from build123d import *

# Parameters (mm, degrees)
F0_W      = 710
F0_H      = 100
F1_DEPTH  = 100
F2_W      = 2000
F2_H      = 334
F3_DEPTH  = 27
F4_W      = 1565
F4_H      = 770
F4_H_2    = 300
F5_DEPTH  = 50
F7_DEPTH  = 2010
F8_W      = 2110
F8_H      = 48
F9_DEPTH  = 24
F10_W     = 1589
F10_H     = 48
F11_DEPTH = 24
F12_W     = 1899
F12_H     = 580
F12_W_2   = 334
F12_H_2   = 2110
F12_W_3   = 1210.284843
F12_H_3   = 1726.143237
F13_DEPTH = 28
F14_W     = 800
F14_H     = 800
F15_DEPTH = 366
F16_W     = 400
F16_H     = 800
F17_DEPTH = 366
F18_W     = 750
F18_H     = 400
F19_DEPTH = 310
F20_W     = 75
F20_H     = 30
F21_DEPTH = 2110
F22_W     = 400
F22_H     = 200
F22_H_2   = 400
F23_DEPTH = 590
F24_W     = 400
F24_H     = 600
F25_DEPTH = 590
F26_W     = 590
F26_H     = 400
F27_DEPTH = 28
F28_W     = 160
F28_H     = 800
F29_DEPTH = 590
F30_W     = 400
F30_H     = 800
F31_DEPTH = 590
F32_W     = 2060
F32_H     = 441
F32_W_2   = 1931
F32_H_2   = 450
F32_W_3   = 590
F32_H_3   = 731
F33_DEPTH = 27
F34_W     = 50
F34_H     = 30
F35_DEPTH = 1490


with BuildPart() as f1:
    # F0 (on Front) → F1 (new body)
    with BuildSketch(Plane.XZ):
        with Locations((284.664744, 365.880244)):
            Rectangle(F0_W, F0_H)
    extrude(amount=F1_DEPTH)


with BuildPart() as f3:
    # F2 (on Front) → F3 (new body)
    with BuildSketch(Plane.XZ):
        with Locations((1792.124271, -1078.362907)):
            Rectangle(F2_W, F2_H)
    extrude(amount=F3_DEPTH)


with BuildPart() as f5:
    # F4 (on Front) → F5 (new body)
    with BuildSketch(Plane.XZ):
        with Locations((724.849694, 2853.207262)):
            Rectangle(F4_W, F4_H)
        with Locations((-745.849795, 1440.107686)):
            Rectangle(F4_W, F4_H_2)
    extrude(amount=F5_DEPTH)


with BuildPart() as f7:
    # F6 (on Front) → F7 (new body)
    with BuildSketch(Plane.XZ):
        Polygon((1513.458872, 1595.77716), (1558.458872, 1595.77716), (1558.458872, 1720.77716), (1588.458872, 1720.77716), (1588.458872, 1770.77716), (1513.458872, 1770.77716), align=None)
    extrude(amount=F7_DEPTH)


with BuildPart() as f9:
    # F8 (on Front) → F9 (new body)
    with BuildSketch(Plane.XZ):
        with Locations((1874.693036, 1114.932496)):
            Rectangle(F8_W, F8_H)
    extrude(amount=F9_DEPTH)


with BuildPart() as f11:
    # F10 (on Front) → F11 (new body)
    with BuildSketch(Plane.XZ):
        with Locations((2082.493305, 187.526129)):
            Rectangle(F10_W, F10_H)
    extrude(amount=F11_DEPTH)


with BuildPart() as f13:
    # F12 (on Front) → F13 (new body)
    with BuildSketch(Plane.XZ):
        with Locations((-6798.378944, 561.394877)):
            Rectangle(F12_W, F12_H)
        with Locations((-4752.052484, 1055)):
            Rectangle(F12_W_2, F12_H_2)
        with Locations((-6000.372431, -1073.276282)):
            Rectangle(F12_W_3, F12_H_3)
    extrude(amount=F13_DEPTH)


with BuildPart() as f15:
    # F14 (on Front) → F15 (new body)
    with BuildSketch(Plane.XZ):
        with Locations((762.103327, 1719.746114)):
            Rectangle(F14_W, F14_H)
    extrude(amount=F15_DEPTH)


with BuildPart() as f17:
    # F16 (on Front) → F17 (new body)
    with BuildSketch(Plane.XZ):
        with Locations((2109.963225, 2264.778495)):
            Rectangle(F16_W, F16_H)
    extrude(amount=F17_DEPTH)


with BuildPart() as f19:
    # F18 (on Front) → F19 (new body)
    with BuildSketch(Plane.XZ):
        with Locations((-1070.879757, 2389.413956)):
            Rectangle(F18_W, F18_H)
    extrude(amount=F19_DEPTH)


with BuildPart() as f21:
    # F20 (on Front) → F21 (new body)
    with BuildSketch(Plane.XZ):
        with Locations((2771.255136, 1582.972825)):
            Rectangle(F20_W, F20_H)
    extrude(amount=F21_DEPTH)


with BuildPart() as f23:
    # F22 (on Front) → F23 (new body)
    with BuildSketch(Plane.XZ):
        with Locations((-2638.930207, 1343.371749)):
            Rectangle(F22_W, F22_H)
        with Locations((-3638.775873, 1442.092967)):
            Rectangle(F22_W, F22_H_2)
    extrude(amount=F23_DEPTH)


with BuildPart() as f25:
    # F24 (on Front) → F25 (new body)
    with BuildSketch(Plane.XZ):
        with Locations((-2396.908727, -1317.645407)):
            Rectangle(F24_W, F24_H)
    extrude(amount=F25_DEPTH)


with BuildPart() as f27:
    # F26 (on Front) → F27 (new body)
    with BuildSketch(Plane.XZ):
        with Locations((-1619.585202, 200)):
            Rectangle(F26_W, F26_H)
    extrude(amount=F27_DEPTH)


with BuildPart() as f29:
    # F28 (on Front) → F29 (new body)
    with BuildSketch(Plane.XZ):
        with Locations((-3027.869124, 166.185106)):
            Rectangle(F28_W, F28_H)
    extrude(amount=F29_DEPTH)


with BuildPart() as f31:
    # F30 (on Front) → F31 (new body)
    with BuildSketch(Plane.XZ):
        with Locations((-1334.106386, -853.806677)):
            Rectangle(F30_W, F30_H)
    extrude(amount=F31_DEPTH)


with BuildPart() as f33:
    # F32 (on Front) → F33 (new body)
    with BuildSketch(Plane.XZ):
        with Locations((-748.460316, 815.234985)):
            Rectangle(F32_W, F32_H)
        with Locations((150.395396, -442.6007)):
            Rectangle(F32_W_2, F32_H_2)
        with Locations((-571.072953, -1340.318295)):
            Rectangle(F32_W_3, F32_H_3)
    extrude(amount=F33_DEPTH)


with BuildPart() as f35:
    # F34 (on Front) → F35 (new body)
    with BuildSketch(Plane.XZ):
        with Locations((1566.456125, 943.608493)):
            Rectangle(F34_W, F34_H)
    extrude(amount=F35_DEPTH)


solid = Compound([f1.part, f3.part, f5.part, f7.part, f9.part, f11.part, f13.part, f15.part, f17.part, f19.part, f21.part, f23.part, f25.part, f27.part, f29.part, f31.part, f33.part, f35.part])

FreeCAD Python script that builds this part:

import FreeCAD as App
import Part
import Sketcher

V = App.Vector


def add_polygon(sketch, points):
    """Adds a closed chain of lines whose ends are joined by coincident constraints."""
    first, n = sketch.GeometryCount, len(points)
    for a, b in zip(points, points[1:] + points[:1]):
        sketch.addGeometry(Part.LineSegment(App.Vector(*a, 0), App.Vector(*b, 0)), False)
    for i in range(n):
        sketch.addConstraint(Sketcher.Constraint("Coincident", first + i, 2, first + (i + 1) % n, 1))

doc = App.newDocument("Part")
body = doc.addObject("PartDesign::Body", "Body")

sketch1 = body.newObject("Sketcher::SketchObject", "Sketch")
sketch1.AttachmentSupport = (doc.getObject("XZ_Plane"), [""])
sketch1.MapMode = "FlatFace"
add_polygon(sketch1, [(-70.335256, 415.880244), (-70.335256, 315.880244), (639.664744, 315.880244), (639.664744, 415.880244)])
sketch1.addConstraint([
    Sketcher.Constraint("Vertical", 0),
    Sketcher.Constraint("Horizontal", 1),
    Sketcher.Constraint("Vertical", 2),
    Sketcher.Constraint("Horizontal", 3),
    Sketcher.Constraint("DistanceX", 1, 1, 1, 2, 710.0),
    Sketcher.Constraint("DistanceY", 0, 2, 0, 1, 100.0),
    Sketcher.Constraint("DistanceX", 0, 2, -1, 1, 70.335256),
    Sketcher.Constraint("DistanceY", -1, 1, 0, 2, 315.880244),
])
pad1 = body.newObject("PartDesign::Pad", "Pad")
pad1.Profile = sketch1
pad1.Length = 100
body2 = doc.addObject("PartDesign::Body", "Body001")

sketch2 = body2.newObject("Sketcher::SketchObject", "Sketch001")
sketch2.AttachmentSupport = (doc.getObject("XZ_Plane001"), [""])
sketch2.MapMode = "FlatFace"
add_polygon(sketch2, [(792.124271, -911.362907), (792.124271, -1245.362907), (2792.124271, -1245.362907), (2792.124271, -911.362907)])
sketch2.addConstraint([
    Sketcher.Constraint("Vertical", 0),
    Sketcher.Constraint("Horizontal", 1),
    Sketcher.Constraint("Vertical", 2),
    Sketcher.Constraint("Horizontal", 3),
    Sketcher.Constraint("DistanceX", 1, 1, 1, 2, 2000.0),
    Sketcher.Constraint("DistanceY", 0, 2, 0, 1, 334.0),
    Sketcher.Constraint("DistanceX", -1, 1, 0, 2, 792.124271),
    Sketcher.Constraint("DistanceY", 0, 2, -1, 1, 1245.362907),
])
pad2 = body2.newObject("PartDesign::Pad", "Pad001")
pad2.Profile = sketch2
pad2.Length = 27
body3 = doc.addObject("PartDesign::Body", "Body002")
body3.AllowCompound = True

sketch3 = body3.newObject("Sketcher::SketchObject", "Sketch002")
sketch3.AttachmentSupport = (doc.getObject("XZ_Plane002"), [""])
sketch3.MapMode = "FlatFace"
add_polygon(sketch3, [(-57.650306, 3238.207262), (-57.650306, 2468.207262), (1507.349694, 2468.207262), (1507.349694, 3238.207262)])
add_polygon(sketch3, [(-1528.349795, 1590.107686), (-1528.349795, 1290.107686), (36.650205, 1290.107686), (36.650205, 1590.107686)])
sketch3.addConstraint([
    Sketcher.Constraint("Vertical", 0),
    Sketcher.Constraint("Horizontal", 1),
    Sketcher.Constraint("Vertical", 2),
    Sketcher.Constraint("Horizontal", 3),
    Sketcher.Constraint("Vertical", 4),
    Sketcher.Constraint("Horizontal", 5),
    Sketcher.Constraint("Vertical", 6),
    Sketcher.Constraint("Horizontal", 7),
    Sketcher.Constraint("Equal", 3, 5),
    Sketcher.Constraint("DistanceX", 1, 1, 1, 2, 1565.0),
    Sketcher.Constraint("DistanceY", 0, 2, 0, 1, 770.0),
    Sketcher.Constraint("DistanceY", 4, 2, 4, 1, 300.0),
    Sketcher.Constraint("DistanceY", -1, 1, 0, 2, 2468.207262),
    Sketcher.Constraint("DistanceX", 4, 2, 0, 2, 1470.699489),
    Sketcher.Constraint("DistanceX", 0, 2, -1, 1, 57.650306),
    Sketcher.Constraint("DistanceY", -1, 1, 4, 2, 1290.107686),
])
pad3 = body3.newObject("PartDesign::Pad", "Pad002")
pad3.Profile = sketch3
pad3.Length = 50
body4 = doc.addObject("PartDesign::Body", "Body003")

sketch4 = body4.newObject("Sketcher::SketchObject", "Sketch003")
sketch4.AttachmentSupport = (doc.getObject("XZ_Plane003"), [""])
sketch4.MapMode = "FlatFace"
add_polygon(sketch4, [(1513.458872, 1595.77716), (1558.458872, 1595.77716), (1558.458872, 1720.77716), (1588.458872, 1720.77716), (1588.458872, 1770.77716), (1513.458872, 1770.77716)])
sketch4.addConstraint([
    Sketcher.Constraint("Horizontal", 0),
    Sketcher.Constraint("Vertical", 1),
    Sketcher.Constraint("Horizontal", 2),
    Sketcher.Constraint("Vertical", 3),
    Sketcher.Constraint("Horizontal", 4),
    Sketcher.Constraint("Vertical", 5),
    Sketcher.Constraint("DistanceX", 0, 1, 0, 2, 45.0),
    Sketcher.Constraint("DistanceX", 2, 1, 2, 2, 30.0),
    Sketcher.Constraint("DistanceY", 1, 1, 1, 2, 125.0),
    Sketcher.Constraint("DistanceY", 3, 1, 3, 2, 50.0),
    Sketcher.Constraint("DistanceX", -1, 1, 0, 2, 1558.458872),
    Sketcher.Constraint("DistanceY", -1, 1, 0, 2, 1595.77716),
])
pad4 = body4.newObject("PartDesign::Pad", "Pad003")
pad4.Profile = sketch4
pad4.Length = 2010
body5 = doc.addObject("PartDesign::Body", "Body004")

sketch5 = body5.newObject("Sketcher::SketchObject", "Sketch004")
sketch5.AttachmentSupport = (doc.getObject("XZ_Plane004"), [""])
sketch5.MapMode = "FlatFace"
add_polygon(sketch5, [(819.693036, 1138.932496), (819.693036, 1090.932496), (2929.693036, 1090.932496), (2929.693036, 1138.932496)])
sketch5.addConstraint([
    Sketcher.Constraint("Vertical", 0),
    Sketcher.Constraint("Horizontal", 1),
    Sketcher.Constraint("Vertical", 2),
    Sketcher.Constraint("Horizontal", 3),
    Sketcher.Constraint("DistanceX", 1, 1, 1, 2, 2110.0),
    Sketcher.Constraint("DistanceY", 0, 2, 0, 1, 48.0),
    Sketcher.Constraint("DistanceX", -1, 1, 0, 2, 819.693036),
    Sketcher.Constraint("DistanceY", -1, 1, 0, 2, 1090.932496),
])
pad5 = body5.newObject("PartDesign::Pad", "Pad004")
pad5.Profile = sketch5
pad5.Length = 24
body6 = doc.addObject("PartDesign::Body", "Body005")

sketch6 = body6.newObject("Sketcher::SketchObject", "Sketch005")
sketch6.AttachmentSupport = (doc.getObject("XZ_Plane005"), [""])
sketch6.MapMode = "FlatFace"
add_polygon(sketch6, [(1287.993305, 211.526129), (1287.993305, 163.526129), (2876.993305, 163.526129), (2876.993305, 211.526129)])
sketch6.addConstraint([
    Sketcher.Constraint("Vertical", 0),
    Sketcher.Constraint("Horizontal", 1),
    Sketcher.Constraint("Vertical", 2),
    Sketcher.Constraint("Horizontal", 3),
    Sketcher.Constraint("DistanceX", 1, 1, 1, 2, 1589.0),
    Sketcher.Constraint("DistanceY", 0, 2, 0, 1, 48.0),
    Sketcher.Constraint("DistanceY", -1, 1, 0, 2, 163.526129),
    Sketcher.Constraint("DistanceX", -1, 1, 0, 2, 1287.993305),
])
pad6 = body6.newObject("PartDesign::Pad", "Pad005")
pad6.Profile = sketch6
pad6.Length = 24
body7 = doc.addObject("PartDesign::Body", "Body006")
body7.AllowCompound = True

sketch7 = body7.newObject("Sketcher::SketchObject", "Sketch006")
sketch7.AttachmentSupport = (doc.getObject("XZ_Plane006"), [""])
sketch7.MapMode = "FlatFace"
add_polygon(sketch7, [(-7747.878944, 851.394877), (-7747.878944, 271.394877), (-5848.878944, 271.394877), (-5848.878944, 851.394877)])
add_polygon(sketch7, [(-4919.052484, 2110), (-4919.052484, 0), (-4585.052484, 0), (-4585.052484, 2110)])
add_polygon(sketch7, [(-6605.514853, -210.204664), (-6605.514853, -1936.3479), (-5395.23001, -1936.3479), (-5395.23001, -210.204664)])
sketch7.addConstraint([
    Sketcher.Constraint("Vertical", 0),
    Sketcher.Constraint("Horizontal", 1),
    Sketcher.Constraint("Vertical", 2),
    Sketcher.Constraint("Horizontal", 3),
    Sketcher.Constraint("Vertical", 4),
    Sketcher.Constraint("Horizontal", 5),
    Sketcher.Constraint("Vertical", 6),
    Sketcher.Constraint("Horizontal", 7),
    Sketcher.Constraint("Vertical", 8),
    Sketcher.Constraint("Horizontal", 9),
    Sketcher.Constraint("Vertical", 10),
    Sketcher.Constraint("Horizontal", 11),
    Sketcher.Constraint("PointOnObject", 4, 2, -1),
    Sketcher.Constraint("DistanceX", 1, 1, 1, 2, 1899.0),
    Sketcher.Constraint("DistanceX", 5, 1, 5, 2, 334.0),
    Sketcher.Constraint("DistanceY", 0, 2, 0, 1, 580.0),
    Sketcher.Constraint("DistanceY", 4, 2, 4, 1, 2110.0),
    Sketcher.Constraint("DistanceY", 8, 2, -1, 1, 1936.3479),
    Sketcher.Constraint("DistanceX", 9, 1, 9, 2, 1210.284843),
    Sketcher.Constraint("DistanceY", 8, 2, 8, 1, 1726.143237),
    Sketcher.Constraint("DistanceX", 9, 2, -1, 1, 5395.23001),
    Sketcher.Constraint("DistanceX", 1, 2, 4, 2, 929.82646),
    Sketcher.Constraint("DistanceX", 8, 2, 1, 2, 756.635909),
    Sketcher.Constraint("DistanceY", 10, 2, 1, 2, 481.59954),
])
pad7 = body7.newObject("PartDesign::Pad", "Pad006")
pad7.Profile = sketch7
pad7.Length = 28
body8 = doc.addObject("PartDesign::Body", "Body007")

sketch8 = body8.newObject("Sketcher::SketchObject", "Sketch007")
sketch8.AttachmentSupport = (doc.getObject("XZ_Plane007"), [""])
sketch8.MapMode = "FlatFace"
add_polygon(sketch8, [(362.103327, 2119.746114), (362.103327, 1319.746114), (1162.103327, 1319.746114), (1162.103327, 2119.746114)])
sketch8.addConstraint([
    Sketcher.Constraint("Vertical", 0),
    Sketcher.Constraint("Horizontal", 1),
    Sketcher.Constraint("Vertical", 2),
    Sketcher.Constraint("Horizontal", 3),
    Sketcher.Constraint("Equal", 3, 0),
    Sketcher.Constraint("DistanceX", 1, 1, 1, 2, 800.0),
    Sketcher.Constraint("DistanceX", -1, 1, 0, 2, 362.103327),
    Sketcher.Constraint("DistanceY", -1, 1, 0, 2, 1319.746114),
])
pad8 = body8.newObject("PartDesign::Pad", "Pad007")
pad8.Profile = sketch8
pad8.Length = 366
body9 = doc.addObject("PartDesign::Body", "Body008")

sketch9 = body9.newObject("Sketcher::SketchObject", "Sketch008")
sketch9.AttachmentSupport = (doc.getObject("XZ_Plane008"), [""])
sketch9.MapMode = "FlatFace"
add_polygon(sketch9, [(1909.963225, 2664.778495), (1909.963225, 1864.778495), (2309.963225, 1864.778495), (2309.963225, 2664.778495)])
sketch9.addConstraint([
    Sketcher.Constraint("Vertical", 0),
    Sketcher.Constraint("Horizontal", 1),
    Sketcher.Constraint("Vertical", 2),
    Sketcher.Constraint("Horizontal", 3),
    Sketcher.Constraint("DistanceX", 1, 1, 1, 2, 400.0),
    Sketcher.Constraint("DistanceY", 0, 2, 0, 1, 800.0),
    Sketcher.Constraint("DistanceX", -1, 1, 0, 2, 1909.963225),
    Sketcher.Constraint("DistanceY", -1, 1, 0, 2, 1864.778495),
])
pad9 = body9.newObject("PartDesign::Pad", "Pad008")
pad9.Profile = sketch9
pad9.Length = 366
body10 = doc.addObject("PartDesign::Body", "Body009")

sketch10 = body10.newObject("Sketcher::SketchObject", "Sketch009")
sketch10.AttachmentSupport = (doc.getObject("XZ_Plane009"), [""])
sketch10.MapMode = "FlatFace"
add_polygon(sketch10, [(-1445.879757, 2589.413956), (-1445.879757, 2189.413956), (-695.879757, 2189.413956), (-695.879757, 2589.413956)])
sketch10.addConstraint([
    Sketcher.Constraint("Vertical", 0),
    Sketcher.Constraint("Horizontal", 1),
    Sketcher.Constraint("Vertical", 2),
    Sketcher.Constraint("Horizontal", 3),
    Sketcher.Constraint("DistanceX", 1, 1, 1, 2, 750.0),
    Sketcher.Constraint("DistanceY", 0, 2, 0, 1, 400.0),
    Sketcher.Constraint("DistanceX", 0, 2, -1, 1, 1445.879757),
    Sketcher.Constraint("DistanceY", -1, 1, 0, 2, 2189.413956),
])
pad10 = body10.newObject("PartDesign::Pad", "Pad009")
pad10.Profile = sketch10
pad10.Length = 310
body11 = doc.addObject("PartDesign::Body", "Body010")

sketch11 = body11.newObject("Sketcher::SketchObject", "Sketch010")
sketch11.AttachmentSupport = (doc.getObject("XZ_Plane010"), [""])
sketch11.MapMode = "FlatFace"
add_polygon(sketch11, [(2733.755136, 1597.972825), (2733.755136, 1567.972825), (2808.755136, 1567.972825), (2808.755136, 1597.972825)])
sketch11.addConstraint([
    Sketcher.Constraint("Vertical", 0),
    Sketcher.Constraint("Horizontal", 1),
    Sketcher.Constraint("Vertical", 2),
    Sketcher.Constraint("Horizontal", 3),
    Sketcher.Constraint("DistanceX", 1, 1, 1, 2, 75.0),
    Sketcher.Constraint("DistanceY", 0, 2, 0, 1, 30.0),
    Sketcher.Constraint("DistanceX", -1, 1, 0, 2, 2733.755136),
    Sketcher.Constraint("DistanceY", -1, 1, 0, 2, 1567.972825),
])
pad11 = body11.newObject("PartDesign::Pad", "Pad010")
pad11.Profile = sketch11
pad11.Length = 2110
body12 = doc.addObject("PartDesign::Body", "Body011")
body12.AllowCompound = True

sketch12 = body12.newObject("Sketcher::SketchObject", "Sketch011")
sketch12.AttachmentSupport = (doc.getObject("XZ_Plane011"), [""])
sketch12.MapMode = "FlatFace"
add_polygon(sketch12, [(-2838.930207, 1443.371749), (-2838.930207, 1243.371749), (-2438.930207, 1243.371749), (-2438.930207, 1443.371749)])
add_polygon(sketch12, [(-3838.775873, 1642.092967), (-3838.775873, 1242.092967), (-3438.775873, 1242.092967), (-3438.775873, 1642.092967)])
sketch12.addConstraint([
    Sketcher.Constraint("Vertical", 0),
    Sketcher.Constraint("Horizontal", 1),
    Sketcher.Constraint("Vertical", 2),
    Sketcher.Constraint("Horizontal", 3),
    Sketcher.Constraint("Vertical", 4),
    Sketcher.Constraint("Horizontal", 5),
    Sketcher.Constraint("Vertical", 6),
    Sketcher.Constraint("Horizontal", 7),
    Sketcher.Constraint("Equal", 3, 5),
    Sketcher.Constraint("Equal", 7, 4),
    Sketcher.Constraint("DistanceX", 1, 1, 1, 2, 400.0),
    Sketcher.Constraint("DistanceY", 0, 2, 0, 1, 200.0),
    Sketcher.Constraint("DistanceY", -1, 1, 0, 2, 1243.371749),
    Sketcher.Constraint("DistanceY", 4, 2, 0, 2, 1.278782),
    Sketcher.Constraint("DistanceX", 0, 2, -1, 1, 2838.930207),
    Sketcher.Constraint("DistanceX", 4, 2, -1, 1, 3838.775873),
])
pad12 = body12.newObject("PartDesign::Pad", "Pad011")
pad12.Profile = sketch12
pad12.Length = 590
body13 = doc.addObject("PartDesign::Body", "Body012")

sketch13 = body13.newObject("Sketcher::SketchObject", "Sketch012")
sketch13.AttachmentSupport = (doc.getObject("XZ_Plane012"), [""])
sketch13.MapMode = "FlatFace"
add_polygon(sketch13, [(-2596.908727, -1017.645407), (-2596.908727, -1617.645407), (-2196.908727, -1617.645407), (-2196.908727, -1017.645407)])
sketch13.addConstraint([
    Sketcher.Constraint("Vertical", 0),
    Sketcher.Constraint("Horizontal", 1),
    Sketcher.Constraint("Vertical", 2),
    Sketcher.Constraint("Horizontal", 3),
    Sketcher.Constraint("DistanceX", 1, 1, 1, 2, 400.0),
    Sketcher.Constraint("DistanceY", 0, 2, 0, 1, 600.0),
    Sketcher.Constraint("DistanceX", 0, 2, -1, 1, 2596.908727),
    Sketcher.Constraint("DistanceY", 0, 2, -1, 1, 1617.645407),
])
pad13 = body13.newObject("PartDesign::Pad", "Pad012")
pad13.Profile = sketch13
pad13.Length = 590
body14 = doc.addObject("PartDesign::Body", "Body013")

sketch14 = body14.newObject("Sketcher::SketchObject", "Sketch013")
sketch14.AttachmentSupport = (doc.getObject("XZ_Plane013"), [""])
sketch14.MapMode = "FlatFace"
add_polygon(sketch14, [(-1914.585202, 400), (-1914.585202, 0), (-1324.585202, 0), (-1324.585202, 400)])
sketch14.addConstraint([
    Sketcher.Constraint("Vertical", 0),
    Sketcher.Constraint("Horizontal", 1),
    Sketcher.Constraint("Vertical", 2),
    Sketcher.Constraint("Horizontal", 3),
    Sketcher.Constraint("PointOnObject", 0, 2, -1),
    Sketcher.Constraint("DistanceX", 1, 1, 1, 2, 590.0),
    Sketcher.Constraint("DistanceY", 0, 2, 0, 1, 400.0),
    Sketcher.Constraint("DistanceX", 0, 2, -1, 1, 1914.585202),
])
pad14 = body14.newObject("PartDesign::Pad", "Pad013")
pad14.Profile = sketch14
pad14.Length = 28
body15 = doc.addObject("PartDesign::Body", "Body014")

sketch15 = body15.newObject("Sketcher::SketchObject", "Sketch014")
sketch15.AttachmentSupport = (doc.getObject("XZ_Plane014"), [""])
sketch15.MapMode = "FlatFace"
add_polygon(sketch15, [(-3107.869124, 566.185106), (-3107.869124, -233.814894), (-2947.869124, -233.814894), (-2947.869124, 566.185106)])
sketch15.addConstraint([
    Sketcher.Constraint("Vertical", 0),
    Sketcher.Constraint("Horizontal", 1),
    Sketcher.Constraint("Vertical", 2),
    Sketcher.Constraint("Horizontal", 3),
    Sketcher.Constraint("DistanceX", 1, 1, 1, 2, 160.0),
    Sketcher.Constraint("DistanceY", 0, 2, 0, 1, 800.0),
    Sketcher.Constraint("DistanceX", 0, 2, -1, 1, 3107.869124),
    Sketcher.Constraint("DistanceY", 0, 2, -1, 1, 233.814894),
])
pad15 = body15.newObject("PartDesign::Pad", "Pad014")
pad15.Profile = sketch15
pad15.Length = 590
body16 = doc.addObject("PartDesign::Body", "Body015")

sketch16 = body16.newObject("Sketcher::SketchObject", "Sketch015")
sketch16.AttachmentSupport = (doc.getObject("XZ_Plane015"), [""])
sketch16.MapMode = "FlatFace"
add_polygon(sketch16, [(-1534.106386, -453.806677), (-1534.106386, -1253.806677), (-1134.106386, -1253.806677), (-1134.106386, -453.806677)])
sketch16.addConstraint([
    Sketcher.Constraint("Vertical", 0),
    Sketcher.Constraint("Horizontal", 1),
    Sketcher.Constraint("Vertical", 2),
    Sketcher.Constraint("Horizontal", 3),
    Sketcher.Constraint("DistanceX", 1, 1, 1, 2, 400.0),
    Sketcher.Constraint("DistanceY", 0, 2, 0, 1, 800.0),
    Sketcher.Constraint("DistanceX", 0, 2, -1, 1, 1534.106386),
    Sketcher.Constraint("DistanceY", 0, 2, -1, 1, 1253.806677),
])
pad16 = body16.newObject("PartDesign::Pad", "Pad015")
pad16.Profile = sketch16
pad16.Length = 590
body17 = doc.addObject("PartDesign::Body", "Body016")
body17.AllowCompound = True

sketch17 = body17.newObject("Sketcher::SketchObject", "Sketch016")
sketch17.AttachmentSupport = (doc.getObject("XZ_Plane016"), [""])
sketch17.MapMode = "FlatFace"
add_polygon(sketch17, [(-1778.460316, 1035.734985), (-1778.460316, 594.734985), (281.539684, 594.734985), (281.539684, 1035.734985)])
add_polygon(sketch17, [(-815.104604, -217.6007), (-815.104604, -667.6007), (1115.895396, -667.6007), (1115.895396, -217.6007)])
add_polygon(sketch17, [(-866.072953, -974.818295), (-866.072953, -1705.818295), (-276.072953, -1705.818295), (-276.072953, -974.818295)])
sketch17.addConstraint([
    Sketcher.Constraint("Vertical", 0),
    Sketcher.Constraint("Horizontal", 1),
    Sketcher.Constraint("Vertical", 2),
    Sketcher.Constraint("Horizontal", 3),
    Sketcher.Constraint("Vertical", 4),
    Sketcher.Constraint("Horizontal", 5),
    Sketcher.Constraint("Vertical", 6),
    Sketcher.Constraint("Horizontal", 7),
    Sketcher.Constraint("Vertical", 8),
    Sketcher.Constraint("Horizontal", 9),
    Sketcher.Constraint("Vertical", 10),
    Sketcher.Constraint("Horizontal", 11),
    Sketcher.Constraint("DistanceX", 1, 1, 1, 2, 2060.0),
    Sketcher.Constraint("DistanceX", 5, 1, 5, 2, 1931.0),
    Sketcher.Constraint("DistanceX", 9, 1, 9, 2, 590.0),
    Sketcher.Constraint("DistanceY", 0, 2, 0, 1, 441.0),
    Sketcher.Constraint("DistanceY", 4, 2, 4, 1, 450.0),
    Sketcher.Constraint("DistanceY", 8, 2, 8, 1, 731.0),
    Sketcher.Constraint("DistanceY", 4, 2, -1, 1, 667.6007),
    Sketcher.Constraint("DistanceX", 0, 2, 4, 2, 963.355712),
    Sketcher.Constraint("DistanceX", 8, 2, 4, 2, 50.968349),
    Sketcher.Constraint("DistanceY", 8, 2, 0, 2, 2300.55328),
    Sketcher.Constraint("DistanceX", 0, 2, -1, 1, 1778.460316),
    Sketcher.Constraint("DistanceY", -1, 1, 0, 2, 594.734985),
])
pad17 = body17.newObject("PartDesign::Pad", "Pad016")
pad17.Profile = sketch17
pad17.Length = 27
body18 = doc.addObject("PartDesign::Body", "Body017")

sketch18 = body18.newObject("Sketcher::SketchObject", "Sketch017")
sketch18.AttachmentSupport = (doc.getObject("XZ_Plane017"), [""])
sketch18.MapMode = "FlatFace"
add_polygon(sketch18, [(1541.456125, 958.608493), (1541.456125, 928.608493), (1591.456125, 928.608493), (1591.456125, 958.608493)])
sketch18.addConstraint([
    Sketcher.Constraint("Vertical", 0),
    Sketcher.Constraint("Horizontal", 1),
    Sketcher.Constraint("Vertical", 2),
    Sketcher.Constraint("Horizontal", 3),
    Sketcher.Constraint("DistanceX", 1, 1, 1, 2, 50.0),
    Sketcher.Constraint("DistanceY", 0, 2, 0, 1, 30.0),
    Sketcher.Constraint("DistanceX", -1, 1, 0, 2, 1541.456125),
    Sketcher.Constraint("DistanceY", -1, 1, 0, 2, 928.608493),
])
pad18 = body18.newObject("PartDesign::Pad", "Pad017")
pad18.Profile = sketch18
pad18.Length = 1490

doc.recompute()
